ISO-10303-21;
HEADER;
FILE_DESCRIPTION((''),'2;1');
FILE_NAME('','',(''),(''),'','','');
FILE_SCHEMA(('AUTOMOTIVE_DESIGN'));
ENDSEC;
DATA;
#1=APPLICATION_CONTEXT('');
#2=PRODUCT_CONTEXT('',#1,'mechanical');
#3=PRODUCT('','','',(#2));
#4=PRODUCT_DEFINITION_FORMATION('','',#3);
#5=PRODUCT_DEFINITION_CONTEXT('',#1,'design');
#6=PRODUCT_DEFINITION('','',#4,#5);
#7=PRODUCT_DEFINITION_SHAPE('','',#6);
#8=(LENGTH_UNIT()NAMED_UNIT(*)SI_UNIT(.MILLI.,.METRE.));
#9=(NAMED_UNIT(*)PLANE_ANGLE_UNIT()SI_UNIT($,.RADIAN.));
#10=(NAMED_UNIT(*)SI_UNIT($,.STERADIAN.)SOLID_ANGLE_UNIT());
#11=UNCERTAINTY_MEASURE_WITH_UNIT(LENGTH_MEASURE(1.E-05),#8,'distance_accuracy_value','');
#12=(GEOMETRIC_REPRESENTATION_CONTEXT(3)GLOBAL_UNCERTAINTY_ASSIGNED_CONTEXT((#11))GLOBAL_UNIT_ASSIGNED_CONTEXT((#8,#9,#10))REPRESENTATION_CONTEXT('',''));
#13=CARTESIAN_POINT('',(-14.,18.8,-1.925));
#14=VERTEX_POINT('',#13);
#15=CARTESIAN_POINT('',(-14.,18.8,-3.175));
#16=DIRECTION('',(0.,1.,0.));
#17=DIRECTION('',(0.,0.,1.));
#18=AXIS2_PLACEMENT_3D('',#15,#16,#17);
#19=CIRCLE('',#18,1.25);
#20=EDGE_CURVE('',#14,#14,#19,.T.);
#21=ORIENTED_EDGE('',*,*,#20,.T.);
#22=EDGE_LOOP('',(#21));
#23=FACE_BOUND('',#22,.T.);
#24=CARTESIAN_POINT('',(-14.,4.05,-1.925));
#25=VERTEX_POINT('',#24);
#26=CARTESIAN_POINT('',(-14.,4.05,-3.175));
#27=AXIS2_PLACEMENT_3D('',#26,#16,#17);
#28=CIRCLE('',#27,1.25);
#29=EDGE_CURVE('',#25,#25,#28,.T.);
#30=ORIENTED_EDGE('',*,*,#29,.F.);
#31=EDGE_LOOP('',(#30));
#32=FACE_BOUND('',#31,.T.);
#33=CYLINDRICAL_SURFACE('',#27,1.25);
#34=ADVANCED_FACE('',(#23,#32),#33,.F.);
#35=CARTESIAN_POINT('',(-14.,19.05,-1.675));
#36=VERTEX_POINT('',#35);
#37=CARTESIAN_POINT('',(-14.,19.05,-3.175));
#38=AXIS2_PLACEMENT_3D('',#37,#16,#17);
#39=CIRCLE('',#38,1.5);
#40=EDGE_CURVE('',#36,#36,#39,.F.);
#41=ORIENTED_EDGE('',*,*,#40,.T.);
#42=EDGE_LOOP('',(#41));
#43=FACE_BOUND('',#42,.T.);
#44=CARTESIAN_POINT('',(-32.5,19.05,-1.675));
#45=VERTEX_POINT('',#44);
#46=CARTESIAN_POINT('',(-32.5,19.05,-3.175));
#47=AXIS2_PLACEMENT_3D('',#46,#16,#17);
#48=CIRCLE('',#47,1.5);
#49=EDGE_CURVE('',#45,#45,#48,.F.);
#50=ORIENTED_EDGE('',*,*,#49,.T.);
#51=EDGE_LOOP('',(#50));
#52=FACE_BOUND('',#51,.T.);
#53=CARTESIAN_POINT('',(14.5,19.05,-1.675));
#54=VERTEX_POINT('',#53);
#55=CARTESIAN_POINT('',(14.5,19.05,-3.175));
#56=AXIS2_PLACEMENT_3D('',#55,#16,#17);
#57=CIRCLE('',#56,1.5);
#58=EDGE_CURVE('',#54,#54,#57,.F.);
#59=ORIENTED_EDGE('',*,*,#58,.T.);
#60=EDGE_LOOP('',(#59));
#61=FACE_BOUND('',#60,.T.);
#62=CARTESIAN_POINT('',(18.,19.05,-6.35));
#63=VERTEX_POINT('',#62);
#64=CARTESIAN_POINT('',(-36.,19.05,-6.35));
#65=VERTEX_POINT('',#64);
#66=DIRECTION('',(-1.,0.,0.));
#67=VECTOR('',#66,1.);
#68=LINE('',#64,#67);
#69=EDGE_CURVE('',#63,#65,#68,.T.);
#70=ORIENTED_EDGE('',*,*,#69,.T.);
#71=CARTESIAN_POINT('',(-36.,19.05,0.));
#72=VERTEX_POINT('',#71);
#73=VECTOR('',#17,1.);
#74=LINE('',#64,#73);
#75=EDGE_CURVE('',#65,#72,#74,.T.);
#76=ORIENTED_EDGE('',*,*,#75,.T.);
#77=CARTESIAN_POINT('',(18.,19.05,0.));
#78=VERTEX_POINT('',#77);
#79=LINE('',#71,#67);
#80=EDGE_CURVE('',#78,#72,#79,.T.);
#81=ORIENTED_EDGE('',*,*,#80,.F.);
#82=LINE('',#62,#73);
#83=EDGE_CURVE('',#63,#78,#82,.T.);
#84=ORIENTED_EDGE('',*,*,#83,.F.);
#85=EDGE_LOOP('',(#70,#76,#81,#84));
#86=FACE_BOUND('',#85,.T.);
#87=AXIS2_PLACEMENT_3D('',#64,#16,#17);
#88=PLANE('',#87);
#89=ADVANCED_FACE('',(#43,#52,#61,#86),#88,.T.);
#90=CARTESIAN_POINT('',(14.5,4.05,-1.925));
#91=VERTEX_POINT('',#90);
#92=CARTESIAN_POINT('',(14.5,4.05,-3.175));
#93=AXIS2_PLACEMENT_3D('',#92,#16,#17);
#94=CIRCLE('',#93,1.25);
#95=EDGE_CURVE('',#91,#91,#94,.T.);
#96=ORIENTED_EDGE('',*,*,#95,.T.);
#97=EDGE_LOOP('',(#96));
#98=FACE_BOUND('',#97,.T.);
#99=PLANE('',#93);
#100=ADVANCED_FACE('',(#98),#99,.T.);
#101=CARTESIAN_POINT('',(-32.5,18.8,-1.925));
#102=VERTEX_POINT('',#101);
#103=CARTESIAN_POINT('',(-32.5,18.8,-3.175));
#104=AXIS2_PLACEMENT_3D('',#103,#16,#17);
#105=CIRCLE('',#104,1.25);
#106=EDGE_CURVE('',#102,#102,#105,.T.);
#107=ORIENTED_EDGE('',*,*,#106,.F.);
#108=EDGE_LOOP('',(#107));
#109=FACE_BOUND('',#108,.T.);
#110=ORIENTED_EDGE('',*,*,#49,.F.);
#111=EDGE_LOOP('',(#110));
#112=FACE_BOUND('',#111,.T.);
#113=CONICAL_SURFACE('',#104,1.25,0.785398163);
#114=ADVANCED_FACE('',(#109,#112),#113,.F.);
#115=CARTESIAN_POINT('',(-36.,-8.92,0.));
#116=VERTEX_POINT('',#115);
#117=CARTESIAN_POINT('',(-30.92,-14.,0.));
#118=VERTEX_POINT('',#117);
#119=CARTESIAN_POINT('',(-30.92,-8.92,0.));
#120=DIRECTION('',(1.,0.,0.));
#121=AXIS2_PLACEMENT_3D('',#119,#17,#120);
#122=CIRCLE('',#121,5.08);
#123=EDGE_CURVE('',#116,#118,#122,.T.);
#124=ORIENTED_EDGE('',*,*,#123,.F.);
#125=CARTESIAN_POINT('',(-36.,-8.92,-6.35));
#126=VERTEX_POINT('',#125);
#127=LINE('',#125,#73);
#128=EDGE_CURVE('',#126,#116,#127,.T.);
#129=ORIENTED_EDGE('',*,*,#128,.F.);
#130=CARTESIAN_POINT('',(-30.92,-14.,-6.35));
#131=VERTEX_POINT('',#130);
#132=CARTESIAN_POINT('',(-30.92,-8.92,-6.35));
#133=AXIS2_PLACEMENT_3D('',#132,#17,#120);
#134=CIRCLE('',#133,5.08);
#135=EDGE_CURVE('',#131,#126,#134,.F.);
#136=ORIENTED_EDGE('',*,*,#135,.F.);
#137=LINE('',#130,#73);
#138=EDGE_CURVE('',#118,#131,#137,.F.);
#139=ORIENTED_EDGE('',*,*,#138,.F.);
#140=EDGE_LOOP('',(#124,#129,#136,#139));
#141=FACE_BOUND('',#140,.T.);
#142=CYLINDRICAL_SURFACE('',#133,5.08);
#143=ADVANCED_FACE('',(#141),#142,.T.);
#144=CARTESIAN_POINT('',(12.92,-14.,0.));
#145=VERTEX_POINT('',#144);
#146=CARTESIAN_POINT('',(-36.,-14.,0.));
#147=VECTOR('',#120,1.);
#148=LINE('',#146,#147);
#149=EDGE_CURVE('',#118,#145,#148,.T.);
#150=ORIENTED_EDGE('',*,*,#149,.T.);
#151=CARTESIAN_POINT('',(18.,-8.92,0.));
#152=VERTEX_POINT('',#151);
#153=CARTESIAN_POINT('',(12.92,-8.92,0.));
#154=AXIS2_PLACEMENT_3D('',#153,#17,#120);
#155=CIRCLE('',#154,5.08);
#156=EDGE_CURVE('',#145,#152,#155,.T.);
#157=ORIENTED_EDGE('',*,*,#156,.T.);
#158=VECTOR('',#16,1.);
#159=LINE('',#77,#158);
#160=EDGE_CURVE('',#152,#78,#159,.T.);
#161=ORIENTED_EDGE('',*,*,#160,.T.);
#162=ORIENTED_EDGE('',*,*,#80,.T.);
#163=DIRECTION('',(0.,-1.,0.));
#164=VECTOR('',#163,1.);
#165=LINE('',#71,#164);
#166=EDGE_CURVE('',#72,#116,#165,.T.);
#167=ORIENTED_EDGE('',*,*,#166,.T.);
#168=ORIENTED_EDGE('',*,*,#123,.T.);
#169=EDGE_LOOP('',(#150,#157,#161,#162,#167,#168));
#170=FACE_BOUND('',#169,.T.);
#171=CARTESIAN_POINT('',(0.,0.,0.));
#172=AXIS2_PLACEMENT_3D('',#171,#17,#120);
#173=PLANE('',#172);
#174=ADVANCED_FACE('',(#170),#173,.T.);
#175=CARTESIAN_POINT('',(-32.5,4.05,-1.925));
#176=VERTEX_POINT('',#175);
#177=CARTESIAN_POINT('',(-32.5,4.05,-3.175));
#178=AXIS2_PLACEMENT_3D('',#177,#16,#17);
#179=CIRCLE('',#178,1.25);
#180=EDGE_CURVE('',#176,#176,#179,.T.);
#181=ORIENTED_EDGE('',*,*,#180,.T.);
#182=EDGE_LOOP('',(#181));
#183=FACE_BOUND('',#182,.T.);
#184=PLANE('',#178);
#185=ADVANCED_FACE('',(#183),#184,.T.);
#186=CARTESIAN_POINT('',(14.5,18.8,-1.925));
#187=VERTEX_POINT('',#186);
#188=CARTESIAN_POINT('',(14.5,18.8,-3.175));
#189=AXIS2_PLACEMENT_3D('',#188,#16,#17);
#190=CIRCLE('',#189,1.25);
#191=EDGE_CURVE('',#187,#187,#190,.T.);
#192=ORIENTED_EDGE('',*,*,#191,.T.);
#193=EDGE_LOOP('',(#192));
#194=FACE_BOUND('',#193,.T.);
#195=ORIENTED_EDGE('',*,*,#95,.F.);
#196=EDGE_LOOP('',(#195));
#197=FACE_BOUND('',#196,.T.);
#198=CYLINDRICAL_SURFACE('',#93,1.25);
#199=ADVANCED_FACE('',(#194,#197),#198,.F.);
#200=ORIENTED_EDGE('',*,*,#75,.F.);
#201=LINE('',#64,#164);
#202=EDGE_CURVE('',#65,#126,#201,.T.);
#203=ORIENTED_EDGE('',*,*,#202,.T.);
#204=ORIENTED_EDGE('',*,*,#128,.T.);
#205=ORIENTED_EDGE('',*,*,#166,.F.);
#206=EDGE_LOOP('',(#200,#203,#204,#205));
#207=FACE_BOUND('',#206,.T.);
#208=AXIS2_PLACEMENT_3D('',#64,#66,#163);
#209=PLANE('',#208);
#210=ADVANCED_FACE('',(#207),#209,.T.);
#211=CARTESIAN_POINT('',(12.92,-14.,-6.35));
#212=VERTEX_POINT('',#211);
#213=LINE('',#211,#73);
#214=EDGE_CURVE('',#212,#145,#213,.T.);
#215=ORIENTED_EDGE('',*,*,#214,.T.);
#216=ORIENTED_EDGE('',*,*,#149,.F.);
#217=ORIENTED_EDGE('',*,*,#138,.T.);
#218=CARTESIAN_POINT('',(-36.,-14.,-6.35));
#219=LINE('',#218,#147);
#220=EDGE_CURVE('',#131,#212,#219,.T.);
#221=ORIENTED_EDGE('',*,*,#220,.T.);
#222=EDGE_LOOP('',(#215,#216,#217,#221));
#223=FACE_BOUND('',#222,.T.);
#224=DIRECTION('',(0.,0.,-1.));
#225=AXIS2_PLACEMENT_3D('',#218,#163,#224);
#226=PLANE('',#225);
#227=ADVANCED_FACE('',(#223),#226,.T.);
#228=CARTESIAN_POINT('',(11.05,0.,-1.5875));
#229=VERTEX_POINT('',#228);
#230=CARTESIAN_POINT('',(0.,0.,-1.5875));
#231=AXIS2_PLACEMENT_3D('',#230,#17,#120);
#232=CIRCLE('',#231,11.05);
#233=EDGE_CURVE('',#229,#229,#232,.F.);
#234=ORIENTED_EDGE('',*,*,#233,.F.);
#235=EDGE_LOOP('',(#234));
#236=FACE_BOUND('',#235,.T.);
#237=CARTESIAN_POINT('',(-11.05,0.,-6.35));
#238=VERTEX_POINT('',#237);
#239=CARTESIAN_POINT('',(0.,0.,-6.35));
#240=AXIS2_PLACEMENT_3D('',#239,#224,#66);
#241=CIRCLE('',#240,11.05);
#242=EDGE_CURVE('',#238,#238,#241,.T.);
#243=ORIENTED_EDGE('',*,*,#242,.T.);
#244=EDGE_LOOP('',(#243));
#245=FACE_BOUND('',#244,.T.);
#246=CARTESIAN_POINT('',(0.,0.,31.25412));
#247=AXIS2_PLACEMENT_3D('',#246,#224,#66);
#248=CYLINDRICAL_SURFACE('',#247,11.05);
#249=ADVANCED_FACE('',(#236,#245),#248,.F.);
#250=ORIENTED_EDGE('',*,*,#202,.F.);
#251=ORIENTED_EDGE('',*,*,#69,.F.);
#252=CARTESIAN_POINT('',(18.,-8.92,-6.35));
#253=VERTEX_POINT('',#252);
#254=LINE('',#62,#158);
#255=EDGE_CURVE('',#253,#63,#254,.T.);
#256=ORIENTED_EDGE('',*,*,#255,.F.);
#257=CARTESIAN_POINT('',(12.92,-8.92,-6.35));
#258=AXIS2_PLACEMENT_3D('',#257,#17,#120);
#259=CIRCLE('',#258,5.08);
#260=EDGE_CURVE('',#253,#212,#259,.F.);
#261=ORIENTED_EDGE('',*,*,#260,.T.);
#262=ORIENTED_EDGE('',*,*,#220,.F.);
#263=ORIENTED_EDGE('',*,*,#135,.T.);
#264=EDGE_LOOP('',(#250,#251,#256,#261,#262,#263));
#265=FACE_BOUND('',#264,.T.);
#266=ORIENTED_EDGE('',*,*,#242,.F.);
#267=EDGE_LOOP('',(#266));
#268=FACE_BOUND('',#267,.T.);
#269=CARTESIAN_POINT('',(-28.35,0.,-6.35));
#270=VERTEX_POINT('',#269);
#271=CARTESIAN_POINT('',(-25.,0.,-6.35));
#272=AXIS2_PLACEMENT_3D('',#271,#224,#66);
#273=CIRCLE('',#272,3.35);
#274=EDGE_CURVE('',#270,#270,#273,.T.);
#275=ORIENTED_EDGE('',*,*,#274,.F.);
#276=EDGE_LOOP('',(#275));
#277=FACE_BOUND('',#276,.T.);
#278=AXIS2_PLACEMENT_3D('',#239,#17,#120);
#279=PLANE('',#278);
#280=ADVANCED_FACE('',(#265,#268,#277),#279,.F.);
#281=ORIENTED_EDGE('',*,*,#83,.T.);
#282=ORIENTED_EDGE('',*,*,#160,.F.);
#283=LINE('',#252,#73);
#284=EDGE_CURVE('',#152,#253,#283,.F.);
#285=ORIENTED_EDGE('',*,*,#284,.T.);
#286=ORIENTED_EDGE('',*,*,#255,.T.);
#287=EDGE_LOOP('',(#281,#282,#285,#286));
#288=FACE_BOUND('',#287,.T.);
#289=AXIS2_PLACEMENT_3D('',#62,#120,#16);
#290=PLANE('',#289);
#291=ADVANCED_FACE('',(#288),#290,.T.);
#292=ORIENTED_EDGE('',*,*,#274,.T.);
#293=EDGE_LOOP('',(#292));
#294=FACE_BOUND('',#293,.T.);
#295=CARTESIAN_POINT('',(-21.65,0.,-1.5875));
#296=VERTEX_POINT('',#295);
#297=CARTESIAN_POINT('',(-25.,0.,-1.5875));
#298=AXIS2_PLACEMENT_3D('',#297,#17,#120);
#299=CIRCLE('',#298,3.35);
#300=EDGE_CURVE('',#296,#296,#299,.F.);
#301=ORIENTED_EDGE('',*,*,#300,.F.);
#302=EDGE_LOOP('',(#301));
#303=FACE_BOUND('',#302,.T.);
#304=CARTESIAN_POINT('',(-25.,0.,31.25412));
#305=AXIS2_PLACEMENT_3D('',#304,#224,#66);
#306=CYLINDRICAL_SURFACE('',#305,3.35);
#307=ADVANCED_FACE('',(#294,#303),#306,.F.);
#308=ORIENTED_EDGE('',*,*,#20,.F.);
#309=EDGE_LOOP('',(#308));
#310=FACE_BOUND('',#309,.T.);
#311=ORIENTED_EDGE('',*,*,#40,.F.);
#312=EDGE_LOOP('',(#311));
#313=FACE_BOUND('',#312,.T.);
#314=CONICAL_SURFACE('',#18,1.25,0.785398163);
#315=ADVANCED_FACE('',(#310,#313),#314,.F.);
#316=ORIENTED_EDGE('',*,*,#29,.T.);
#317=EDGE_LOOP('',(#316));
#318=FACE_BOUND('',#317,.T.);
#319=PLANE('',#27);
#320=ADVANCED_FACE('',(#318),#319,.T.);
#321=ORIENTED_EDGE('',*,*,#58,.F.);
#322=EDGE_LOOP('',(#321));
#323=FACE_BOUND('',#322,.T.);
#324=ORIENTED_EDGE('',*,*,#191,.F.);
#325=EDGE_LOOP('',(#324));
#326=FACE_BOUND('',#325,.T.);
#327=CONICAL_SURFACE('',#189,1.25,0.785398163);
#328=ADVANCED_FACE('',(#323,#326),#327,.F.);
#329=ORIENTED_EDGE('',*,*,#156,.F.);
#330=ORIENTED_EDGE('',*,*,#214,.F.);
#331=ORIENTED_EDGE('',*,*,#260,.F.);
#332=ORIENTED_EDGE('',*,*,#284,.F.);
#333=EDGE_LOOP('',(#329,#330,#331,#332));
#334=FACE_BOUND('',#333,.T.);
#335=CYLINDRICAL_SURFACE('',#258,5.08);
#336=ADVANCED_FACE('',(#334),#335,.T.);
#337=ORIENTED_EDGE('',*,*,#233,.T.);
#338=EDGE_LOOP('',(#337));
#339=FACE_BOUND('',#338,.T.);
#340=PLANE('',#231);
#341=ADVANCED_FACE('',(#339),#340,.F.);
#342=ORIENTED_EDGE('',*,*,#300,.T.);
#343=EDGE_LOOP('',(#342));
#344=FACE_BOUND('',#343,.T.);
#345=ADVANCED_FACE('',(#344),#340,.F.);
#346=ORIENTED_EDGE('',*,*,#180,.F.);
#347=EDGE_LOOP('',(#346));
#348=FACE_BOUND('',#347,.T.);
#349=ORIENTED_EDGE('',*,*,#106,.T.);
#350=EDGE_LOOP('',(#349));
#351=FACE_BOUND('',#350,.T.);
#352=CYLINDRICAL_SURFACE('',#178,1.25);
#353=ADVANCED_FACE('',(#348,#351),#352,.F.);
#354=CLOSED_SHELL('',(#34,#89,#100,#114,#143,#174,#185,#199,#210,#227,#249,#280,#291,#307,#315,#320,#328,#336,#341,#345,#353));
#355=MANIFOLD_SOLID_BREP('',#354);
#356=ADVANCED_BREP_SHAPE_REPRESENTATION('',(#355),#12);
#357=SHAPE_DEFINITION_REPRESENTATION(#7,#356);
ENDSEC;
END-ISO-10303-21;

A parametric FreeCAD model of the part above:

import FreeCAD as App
import Part
import Sketcher
from FreeCAD import Vector
Q = App.Units.Quantity


def edges_at(feature, points):
    """Names of the edges that pass closest to the given points."""
    edges = feature.Shape.Edges
    near = lambda p: min(range(len(edges)), key=lambda i: edges[i].distToShape(Part.Vertex(*p))[0])
    return sorted({f"Edge{near(p) + 1}" for p in points})

doc = App.newDocument("Part")
body = doc.addObject("PartDesign::Body", "Body")

# Sketch on XY plane
sketch1 = doc.addObject("Sketcher::SketchObject", "Sketch")
body.addObject(sketch1)
sketch1.AttachmentSupport = (doc.XY_Plane, [""])
sketch1.MapMode = "FlatFace"
sketch1.addGeometry([
    Part.LineSegment(Vector(-36, 19, 0), Vector(-36, -14, 0)),
    Part.LineSegment(Vector(-36, -14, 0), Vector(18, -14, 0)),
    Part.LineSegment(Vector(18, -14, 0), Vector(18, 19, 0)),
    Part.LineSegment(Vector(18, 19, 0), Vector(-36, 19, 0)),
], False)
sketch1.addConstraint([
    Sketcher.Constraint("Coincident", 0, 2, 1, 1),
    Sketcher.Constraint("Coincident", 1, 2, 2, 1),
    Sketcher.Constraint("Coincident", 2, 2, 3, 1),
    Sketcher.Constraint("Coincident", 3, 2, 0, 1),
    Sketcher.Constraint("Vertical", 0),
    Sketcher.Constraint("Horizontal", 1),
    Sketcher.Constraint("Vertical", 2),
    Sketcher.Constraint("Horizontal", 3),
    Sketcher.Constraint("DistanceX", 1, 1, 1, 2, Q("54 mm")),
    Sketcher.Constraint("DistanceX", 0, 2, -1, 1, Q("36 mm")),
    Sketcher.Constraint("DistanceY", 0, 2, -1, 1, Q("14 mm")),
    Sketcher.Constraint("DistanceY", 0, 2, 0, 1, Q("33.05 mm")),
])
pad1 = doc.addObject("PartDesign::Pad", "Pad")
body.addObject(pad1)
pad1.Profile = sketch1
pad1.Length = 6.35
pad1.Reversed = True

# Sketch on XZ plane
sketch2 = doc.addObject("Sketcher::SketchObject", "Sketch001")
body.addObject(sketch2)
sketch2.AttachmentSupport = (doc.XZ_Plane, [""])
sketch2.MapMode = "FlatFace"
sketch2.AttachmentOffset = App.Placement(Vector(0, 0, -19.05), App.Rotation())
sketch2.addGeometry([
    Part.Circle(Vector(-32.5, -3.2, 0), Vector(0, 0, 1), 1.2),
    Part.Circle(Vector(-14, -3.2, 0), Vector(0, 0, 1), 1.2),
    Part.Circle(Vector(14.5, -3.2, 0), Vector(0, 0, 1), 1.2),
], False)
sketch2.addConstraint([
    Sketcher.Constraint("Equal", 0, 1),
    Sketcher.Constraint("Equal", 1, 2),
    Sketcher.Constraint("Horizontal", 0, 3, 1, 3),
    Sketcher.Constraint("Horizontal", 1, 3, 2, 3),
    Sketcher.Constraint("Diameter", 0, Q("2.5 mm")),
    Sketcher.Constraint("DistanceX", 1, 3, -1, 1, Q("14 mm")),
    Sketcher.Constraint("DistanceX", 0, 3, 2, 3, Q("47 mm")),
    Sketcher.Constraint("DistanceX", 0, 3, -1, 1, Q("32.5 mm")),
    Sketcher.Constraint("DistanceY", 0, 3, -1, 1, Q("3.175 mm")),
])
pocket1 = doc.addObject("PartDesign::Pocket", "Pocket")
body.addObject(pocket1)
pocket1.Profile = sketch2
pocket1.Length = 15
pocket1.Reversed = True
doc.recompute()

fillet = doc.addObject("PartDesign::Fillet", "Fillet")
body.addObject(fillet)
fillet.Base = (pocket1, edges_at(pocket1, [(18, -14, -3.175), (-36, -14, -3.175)]))
fillet.Radius = 5.08

# Sketch on XY plane
sketch3 = doc.addObject("Sketcher::SketchObject", "Sketch002")
body.addObject(sketch3)
sketch3.AttachmentSupport = (doc.XY_Plane, [""])
sketch3.MapMode = "FlatFace"
sketch3.AttachmentOffset = App.Placement(Vector(0, 0, -6.35), App.Rotation())
sketch3.addGeometry([
    Part.Circle(Vector(-25, 0, 0), Vector(0, 0, 1), 3.4),
    Part.Circle(Vector(0, 0, 0), Vector(0, 0, 1), 11.1),
], False)
sketch3.addConstraint([
    Sketcher.Constraint("Coincident", 1, 3, -1, 1),
    Sketcher.Constraint("PointOnObject", 0, 3, -1),
    Sketcher.Constraint("Diameter", 0, Q("6.7 mm")),
    Sketcher.Constraint("Diameter", 1, Q("22.1 mm")),
    Sketcher.Constraint("DistanceX", 0, 3, -1, 1, Q("25 mm")),
])
pocket2 = doc.addObject("PartDesign::Pocket", "Pocket001")
body.addObject(pocket2)
pocket2.Profile = sketch3
pocket2.Length = 4.7625
pocket2.Reversed = True
doc.recompute()

chamfer = doc.addObject("PartDesign::Chamfer", "Chamfer")
body.addObject(chamfer)
chamfer.Base = (pocket2, edges_at(pocket2, [(-32.5, 19.05, -4.425), (-14, 19.05, -4.425), (14.5, 19.05, -4.425)]))
chamfer.Size = 0.25

doc.recompute()
